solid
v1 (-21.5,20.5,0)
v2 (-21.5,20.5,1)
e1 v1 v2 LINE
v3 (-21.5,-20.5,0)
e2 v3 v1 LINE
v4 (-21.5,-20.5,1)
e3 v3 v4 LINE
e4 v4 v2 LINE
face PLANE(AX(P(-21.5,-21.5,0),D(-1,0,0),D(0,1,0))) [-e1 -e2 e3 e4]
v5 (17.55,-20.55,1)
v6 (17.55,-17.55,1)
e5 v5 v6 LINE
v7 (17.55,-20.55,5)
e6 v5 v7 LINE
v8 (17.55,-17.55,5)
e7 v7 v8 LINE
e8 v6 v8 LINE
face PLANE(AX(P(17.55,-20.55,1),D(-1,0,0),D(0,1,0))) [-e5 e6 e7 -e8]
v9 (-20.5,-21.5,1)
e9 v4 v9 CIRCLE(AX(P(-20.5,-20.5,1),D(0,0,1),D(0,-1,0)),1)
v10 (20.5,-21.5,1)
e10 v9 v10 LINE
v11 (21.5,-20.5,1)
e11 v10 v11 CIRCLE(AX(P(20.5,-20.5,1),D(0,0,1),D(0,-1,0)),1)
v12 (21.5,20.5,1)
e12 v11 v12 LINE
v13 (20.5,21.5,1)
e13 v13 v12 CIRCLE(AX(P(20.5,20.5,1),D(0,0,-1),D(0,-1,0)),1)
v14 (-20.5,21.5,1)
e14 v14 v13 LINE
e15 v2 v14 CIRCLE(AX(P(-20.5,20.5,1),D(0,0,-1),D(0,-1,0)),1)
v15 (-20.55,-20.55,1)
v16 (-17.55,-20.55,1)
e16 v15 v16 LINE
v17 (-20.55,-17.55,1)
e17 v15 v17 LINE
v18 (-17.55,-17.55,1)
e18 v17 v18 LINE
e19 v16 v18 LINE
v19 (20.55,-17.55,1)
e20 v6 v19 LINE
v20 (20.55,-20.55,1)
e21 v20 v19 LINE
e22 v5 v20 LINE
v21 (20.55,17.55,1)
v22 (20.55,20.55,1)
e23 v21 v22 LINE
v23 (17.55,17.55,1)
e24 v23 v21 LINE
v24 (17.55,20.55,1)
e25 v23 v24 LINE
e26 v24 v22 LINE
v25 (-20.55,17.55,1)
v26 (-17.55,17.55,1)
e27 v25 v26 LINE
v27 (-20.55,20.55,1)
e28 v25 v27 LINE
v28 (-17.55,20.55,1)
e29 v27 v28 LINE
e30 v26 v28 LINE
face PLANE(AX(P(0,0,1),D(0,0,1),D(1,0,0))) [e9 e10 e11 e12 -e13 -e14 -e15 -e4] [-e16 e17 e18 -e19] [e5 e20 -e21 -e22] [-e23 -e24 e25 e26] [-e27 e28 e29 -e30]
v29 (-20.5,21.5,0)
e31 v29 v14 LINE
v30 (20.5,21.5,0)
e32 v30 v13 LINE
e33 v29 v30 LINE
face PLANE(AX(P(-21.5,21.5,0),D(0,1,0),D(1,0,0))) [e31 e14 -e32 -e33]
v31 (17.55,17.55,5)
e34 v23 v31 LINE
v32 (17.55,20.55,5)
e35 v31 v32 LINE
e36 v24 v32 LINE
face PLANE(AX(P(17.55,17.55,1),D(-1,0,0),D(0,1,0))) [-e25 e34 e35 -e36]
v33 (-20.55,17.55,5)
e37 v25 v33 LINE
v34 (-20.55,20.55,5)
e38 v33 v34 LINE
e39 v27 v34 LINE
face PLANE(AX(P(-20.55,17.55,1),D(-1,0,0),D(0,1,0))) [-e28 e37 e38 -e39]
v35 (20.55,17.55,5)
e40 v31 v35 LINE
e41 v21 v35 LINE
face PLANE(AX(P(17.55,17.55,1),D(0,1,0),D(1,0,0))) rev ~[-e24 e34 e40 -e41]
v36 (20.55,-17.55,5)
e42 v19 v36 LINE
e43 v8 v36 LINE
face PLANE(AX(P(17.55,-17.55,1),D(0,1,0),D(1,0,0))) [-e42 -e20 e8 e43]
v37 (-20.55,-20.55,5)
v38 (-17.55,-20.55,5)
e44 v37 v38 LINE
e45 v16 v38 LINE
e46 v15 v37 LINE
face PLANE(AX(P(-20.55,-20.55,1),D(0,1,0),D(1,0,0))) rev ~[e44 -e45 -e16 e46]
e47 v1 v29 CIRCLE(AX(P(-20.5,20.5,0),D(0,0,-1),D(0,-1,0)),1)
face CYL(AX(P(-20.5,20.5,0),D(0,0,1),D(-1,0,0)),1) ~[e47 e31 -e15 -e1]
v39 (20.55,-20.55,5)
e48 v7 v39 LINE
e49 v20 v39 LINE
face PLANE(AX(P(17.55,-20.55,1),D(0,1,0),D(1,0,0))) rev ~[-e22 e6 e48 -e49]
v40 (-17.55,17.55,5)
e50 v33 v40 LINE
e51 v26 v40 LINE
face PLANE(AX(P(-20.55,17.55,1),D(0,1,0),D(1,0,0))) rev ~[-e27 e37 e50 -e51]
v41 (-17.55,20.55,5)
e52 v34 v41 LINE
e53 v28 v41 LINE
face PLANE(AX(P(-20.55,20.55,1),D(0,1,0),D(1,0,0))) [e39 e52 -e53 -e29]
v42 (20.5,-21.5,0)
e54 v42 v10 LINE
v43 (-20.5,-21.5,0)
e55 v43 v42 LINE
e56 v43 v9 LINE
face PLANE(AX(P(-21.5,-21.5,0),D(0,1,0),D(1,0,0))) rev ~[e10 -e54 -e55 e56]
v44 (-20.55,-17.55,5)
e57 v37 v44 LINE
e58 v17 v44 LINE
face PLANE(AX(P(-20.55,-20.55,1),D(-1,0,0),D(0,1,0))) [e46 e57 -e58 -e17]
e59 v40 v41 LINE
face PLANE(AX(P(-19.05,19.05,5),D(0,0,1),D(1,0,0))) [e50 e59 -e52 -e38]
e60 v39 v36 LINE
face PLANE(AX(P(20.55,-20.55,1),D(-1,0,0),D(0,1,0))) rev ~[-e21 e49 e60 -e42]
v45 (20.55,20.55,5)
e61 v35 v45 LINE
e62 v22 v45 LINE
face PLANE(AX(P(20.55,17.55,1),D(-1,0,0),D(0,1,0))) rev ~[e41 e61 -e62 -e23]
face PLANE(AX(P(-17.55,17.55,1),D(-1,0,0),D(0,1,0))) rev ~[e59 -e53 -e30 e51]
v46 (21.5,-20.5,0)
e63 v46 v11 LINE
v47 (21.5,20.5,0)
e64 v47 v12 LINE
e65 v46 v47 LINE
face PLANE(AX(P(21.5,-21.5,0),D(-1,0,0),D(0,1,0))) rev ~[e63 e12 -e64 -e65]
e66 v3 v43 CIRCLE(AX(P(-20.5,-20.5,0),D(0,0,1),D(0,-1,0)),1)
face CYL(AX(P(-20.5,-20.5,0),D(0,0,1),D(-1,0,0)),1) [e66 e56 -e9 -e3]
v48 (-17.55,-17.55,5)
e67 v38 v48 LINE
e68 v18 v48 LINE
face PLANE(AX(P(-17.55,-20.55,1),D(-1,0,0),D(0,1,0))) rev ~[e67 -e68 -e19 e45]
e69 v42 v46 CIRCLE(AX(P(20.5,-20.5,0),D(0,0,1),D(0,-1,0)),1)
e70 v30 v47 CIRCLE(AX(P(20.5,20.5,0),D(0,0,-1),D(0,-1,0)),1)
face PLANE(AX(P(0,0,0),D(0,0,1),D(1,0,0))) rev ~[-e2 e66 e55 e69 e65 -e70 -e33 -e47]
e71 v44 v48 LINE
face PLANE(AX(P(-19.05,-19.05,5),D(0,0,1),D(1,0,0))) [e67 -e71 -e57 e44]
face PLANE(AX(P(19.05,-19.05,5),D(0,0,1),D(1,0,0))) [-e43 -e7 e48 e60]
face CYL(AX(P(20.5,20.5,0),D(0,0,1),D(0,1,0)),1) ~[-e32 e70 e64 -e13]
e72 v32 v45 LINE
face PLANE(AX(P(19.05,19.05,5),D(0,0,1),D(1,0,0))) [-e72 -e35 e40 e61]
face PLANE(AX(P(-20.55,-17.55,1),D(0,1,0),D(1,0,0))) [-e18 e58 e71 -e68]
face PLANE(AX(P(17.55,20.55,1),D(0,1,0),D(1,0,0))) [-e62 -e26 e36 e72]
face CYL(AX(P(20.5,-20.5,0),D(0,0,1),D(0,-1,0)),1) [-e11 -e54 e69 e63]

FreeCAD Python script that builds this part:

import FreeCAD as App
import Part
import Sketcher

V = App.Vector
Q = App.Units.Quantity


def edges_at(feature, points):
    """Names of the edges that pass closest to the given points."""
    edges = feature.Shape.Edges
    near = lambda p: min(range(len(edges)), key=lambda i: edges[i].distToShape(Part.Vertex(*p))[0])
    return sorted({f"Edge{near(p) + 1}" for p in points})


def add_polygon(sketch, points):
    """Adds a closed chain of lines whose ends are joined by coincident constraints."""
    first, n = sketch.GeometryCount, len(points)
    for a, b in zip(points, points[1:] + points[:1]):
        sketch.addGeometry(Part.LineSegment(App.Vector(*a, 0), App.Vector(*b, 0)), False)
    for i in range(n):
        sketch.addConstraint(Sketcher.Constraint("Coincident", first + i, 2, first + (i + 1) % n, 1))

doc = App.newDocument("Part")
params = doc.addObject("Spreadsheet::Sheet", "Params")
for row, (alias, value) in enumerate([
    ("sketch1_width", "43 mm"),
    ("pad1_length", "1 mm"),
    ("sketch2_width", "3 mm"),
    ("pad2_length", "4 mm"),
    ("fillet_radius", "1 mm"),
    ("fillet2_radius", "1 mm"),
    ("fillet3_radius", "1 mm"),
    ("fillet4_radius", "1 mm"),
], start=1):
    params.set(f"A{row}", alias)
    params.set(f"B{row}", "=" + value)
    params.setAlias(f"B{row}", alias)

body = doc.addObject("PartDesign::Body", "Body")

# Sketch on XY plane
sketch1 = doc.addObject("Sketcher::SketchObject", "Sketch")
body.addObject(sketch1)
sketch1.AttachmentSupport = (doc.XY_Plane, [""])
sketch1.MapMode = "FlatFace"
add_polygon(sketch1, [(-22, 22), (-22, -22), (22, -22), (22, 22)])  # lines 0-3
sketch1.addConstraint([
    Sketcher.Constraint("Vertical", 0),
    Sketcher.Constraint("Horizontal", 1),
    Sketcher.Constraint("Vertical", 2),
    Sketcher.Constraint("Horizontal", 3),
    Sketcher.Constraint("Symmetric", 0, 2, 2, 2, -1, 1),
    Sketcher.Constraint("Equal", 3, 0),
    Sketcher.Constraint("DistanceX", 1, 1, 1, 2, Q("43 mm")),
])
sketch1.setExpression("Constraints[10]", "Params.sketch1_width")
pad1 = doc.addObject("PartDesign::Pad", "Pad")
body.addObject(pad1)
pad1.Profile = sketch1
pad1.setExpression("Length", "Params.pad1_length")

# Sketch on XY plane
sketch2 = doc.addObject("Sketcher::SketchObject", "Sketch001")
body.addObject(sketch2)
sketch2.AttachmentSupport = (doc.XY_Plane, [""])
sketch2.MapMode = "FlatFace"
sketch2.AttachmentOffset = App.Placement(V(0, 0, 1), App.Rotation())
add_polygon(sketch2, [(-20.6, 20.6), (-20.6, 17.6), (-17.6, 17.6), (-17.6, 20.6)])  # lines 0-3
add_polygon(sketch2, [(17.6, 20.6), (17.6, 17.6), (20.6, 17.6), (20.6, 20.6)])  # lines 4-7
add_polygon(sketch2, [(-20.6, -17.6), (-20.6, -20.6), (-17.6, -20.6), (-17.6, -17.6)])  # lines 8-11
add_polygon(sketch2, [(17.6, -17.6), (17.6, -20.6), (20.6, -20.6), (20.6, -17.6)])  # lines 12-15
sketch2.addConstraint([
    Sketcher.Constraint("Vertical", 0),
    Sketcher.Constraint("Horizontal", 1),
    Sketcher.Constraint("Vertical", 2),
    Sketcher.Constraint("Horizontal", 3),
    Sketcher.Constraint("Vertical", 4),
    Sketcher.Constraint("Horizontal", 5),
    Sketcher.Constraint("Vertical", 6),
    Sketcher.Constraint("Horizontal", 7),
    Sketcher.Constraint("Vertical", 8),
    Sketcher.Constraint("Horizontal", 9),
    Sketcher.Constraint("Vertical", 10),
    Sketcher.Constraint("Horizontal", 11),
    Sketcher.Constraint("Vertical", 12),
    Sketcher.Constraint("Horizontal", 13),
    Sketcher.Constraint("Vertical", 14),
    Sketcher.Constraint("Horizontal", 15),
    Sketcher.Constraint("Symmetric", 6, 2, 8, 2, -1, 1),
    Sketcher.Constraint("Symmetric", 4, 2, 10, 2, -1, 1),
    Sketcher.Constraint("Symmetric", 2, 2, 12, 2, -1, 1),
    Sketcher.Constraint("Symmetric", 0, 2, 14, 2, -1, 1),
    Sketcher.Constraint("Symmetric", 1, 2, 4, 2, -2),
    Sketcher.Constraint("Symmetric", 3, 2, 6, 2, -2),
    Sketcher.Constraint("Equal", 15, 0),
    Sketcher.Constraint("DistanceX", 1, 1, 1, 2, Q("3 mm")),
    Sketcher.Constraint("DistanceX", 1, 2, 4, 2, Q("35.1 mm")),
    Sketcher.Constraint("DistanceY", 8, 2, 0, 2, Q("38.1 mm")),
])
sketch2.setExpression("Constraints[39]", "Params.sketch2_width")
pad2 = doc.addObject("PartDesign::Pad", "Pad001")
body.addObject(pad2)
pad2.Profile = sketch2
pad2.setExpression("Length", "Params.pad2_length")
doc.recompute()

fillet = doc.addObject("PartDesign::Fillet", "Fillet")
body.addObject(fillet)
fillet.Base = (pad2, edges_at(pad2, [(-21.5, -21.5, 0.5)]))
fillet.setExpression("Radius", "Params.fillet_radius")
doc.recompute()

fillet2 = doc.addObject("PartDesign::Fillet", "Fillet001")
body.addObject(fillet2)
fillet2.Base = (fillet, edges_at(fillet, [(21.5, -21.5, 0.5)]))
fillet2.setExpression("Radius", "Params.fillet2_radius")
doc.recompute()

fillet3 = doc.addObject("PartDesign::Fillet", "Fillet002")
body.addObject(fillet3)
fillet3.Base = (fillet2, edges_at(fillet2, [(-21.5, 21.5, 0.5)]))
fillet3.setExpression("Radius", "Params.fillet3_radius")
doc.recompute()

fillet4 = doc.addObject("PartDesign::Fillet", "Fillet003")
body.addObject(fillet4)
fillet4.Base = (fillet3, edges_at(fillet3, [(21.5, 21.5, 0.5)]))
fillet4.setExpression("Radius", "Params.fillet4_radius")

doc.recompute()
